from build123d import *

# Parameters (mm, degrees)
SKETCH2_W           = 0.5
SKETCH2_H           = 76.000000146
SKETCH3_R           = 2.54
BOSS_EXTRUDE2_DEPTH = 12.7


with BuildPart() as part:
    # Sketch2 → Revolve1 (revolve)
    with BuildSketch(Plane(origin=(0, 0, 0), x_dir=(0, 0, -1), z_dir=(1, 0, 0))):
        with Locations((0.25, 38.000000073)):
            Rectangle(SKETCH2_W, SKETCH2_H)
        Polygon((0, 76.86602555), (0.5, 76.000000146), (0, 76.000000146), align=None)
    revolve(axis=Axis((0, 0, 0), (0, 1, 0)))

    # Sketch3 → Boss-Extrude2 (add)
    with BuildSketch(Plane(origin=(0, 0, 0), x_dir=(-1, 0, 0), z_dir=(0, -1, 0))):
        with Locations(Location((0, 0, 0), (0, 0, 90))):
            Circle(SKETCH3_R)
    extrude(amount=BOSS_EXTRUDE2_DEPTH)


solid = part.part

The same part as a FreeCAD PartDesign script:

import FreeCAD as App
import Part
import Sketcher
Q = App.Units.Quantity


def add_polygon(sketch, points):
    """Adds a closed chain of lines whose ends are joined by coincident constraints."""
    first, n = sketch.GeometryCount, len(points)
    for a, b in zip(points, points[1:] + points[:1]):
        sketch.addGeometry(Part.LineSegment(App.Vector(*a, 0), App.Vector(*b, 0)), False)
    for i in range(n):
        sketch.addConstraint(Sketcher.Constraint("Coincident", first + i, 2, first + (i + 1) % n, 1))

doc = App.newDocument("Part")
body = doc.addObject("PartDesign::Body", "Body")

# Sketch on YZ plane
sketch1 = body.newObject("Sketcher::SketchObject", "Sketch")
sketch1.AttachmentSupport = (doc.getObject("YZ_Plane"), [""])
sketch1.MapMode = "FlatFace"
add_polygon(sketch1, [(0, 0), (0, -0.5), (76, -0.5), (76.866026, 0)])  # lines 0-3
sketch1.addConstraint(Sketcher.Constraint("Vertical", 0))
sketch1.addConstraint(Sketcher.Constraint("Horizontal", 1))
sketch1.addConstraint(Sketcher.Constraint("Horizontal", 3))
sketch1.addConstraint(Sketcher.Constraint("Coincident", 3, 2, -1, 1))
sketch1.addConstraint(Sketcher.Constraint("DistanceX", 1, 1, 1, 2, Q("76 mm")))
sketch1.addConstraint(Sketcher.Constraint("Angle", 2, Q("30 deg")))
sketch1.addConstraint(Sketcher.Constraint("Distance", 2, Q("1 mm")))
revolution = body.newObject("PartDesign::Revolution", "Revolution")
revolution.Profile = sketch1
revolution.ReferenceAxis = (sketch1, ["H_Axis"])
revolution.Angle = 360

# Sketch on XZ plane
sketch2 = body.newObject("Sketcher::SketchObject", "Sketch001")
sketch2.AttachmentSupport = (doc.getObject("XZ_Plane"), [""])
sketch2.MapMode = "FlatFace"
sketch2.addGeometry(Part.Circle(App.Vector(0, 0, 0), App.Vector(0, 0, 1), 2.54), False)
sketch2.addConstraint(Sketcher.Constraint("Coincident", 0, 3, -1, 1))
sketch2.addConstraint(Sketcher.Constraint("Diameter", 0, Q("5.08 mm")))
pad1 = body.newObject("PartDesign::Pad", "Pad")
pad1.Profile = sketch2
pad1.Length = 12.7

doc.recompute()
